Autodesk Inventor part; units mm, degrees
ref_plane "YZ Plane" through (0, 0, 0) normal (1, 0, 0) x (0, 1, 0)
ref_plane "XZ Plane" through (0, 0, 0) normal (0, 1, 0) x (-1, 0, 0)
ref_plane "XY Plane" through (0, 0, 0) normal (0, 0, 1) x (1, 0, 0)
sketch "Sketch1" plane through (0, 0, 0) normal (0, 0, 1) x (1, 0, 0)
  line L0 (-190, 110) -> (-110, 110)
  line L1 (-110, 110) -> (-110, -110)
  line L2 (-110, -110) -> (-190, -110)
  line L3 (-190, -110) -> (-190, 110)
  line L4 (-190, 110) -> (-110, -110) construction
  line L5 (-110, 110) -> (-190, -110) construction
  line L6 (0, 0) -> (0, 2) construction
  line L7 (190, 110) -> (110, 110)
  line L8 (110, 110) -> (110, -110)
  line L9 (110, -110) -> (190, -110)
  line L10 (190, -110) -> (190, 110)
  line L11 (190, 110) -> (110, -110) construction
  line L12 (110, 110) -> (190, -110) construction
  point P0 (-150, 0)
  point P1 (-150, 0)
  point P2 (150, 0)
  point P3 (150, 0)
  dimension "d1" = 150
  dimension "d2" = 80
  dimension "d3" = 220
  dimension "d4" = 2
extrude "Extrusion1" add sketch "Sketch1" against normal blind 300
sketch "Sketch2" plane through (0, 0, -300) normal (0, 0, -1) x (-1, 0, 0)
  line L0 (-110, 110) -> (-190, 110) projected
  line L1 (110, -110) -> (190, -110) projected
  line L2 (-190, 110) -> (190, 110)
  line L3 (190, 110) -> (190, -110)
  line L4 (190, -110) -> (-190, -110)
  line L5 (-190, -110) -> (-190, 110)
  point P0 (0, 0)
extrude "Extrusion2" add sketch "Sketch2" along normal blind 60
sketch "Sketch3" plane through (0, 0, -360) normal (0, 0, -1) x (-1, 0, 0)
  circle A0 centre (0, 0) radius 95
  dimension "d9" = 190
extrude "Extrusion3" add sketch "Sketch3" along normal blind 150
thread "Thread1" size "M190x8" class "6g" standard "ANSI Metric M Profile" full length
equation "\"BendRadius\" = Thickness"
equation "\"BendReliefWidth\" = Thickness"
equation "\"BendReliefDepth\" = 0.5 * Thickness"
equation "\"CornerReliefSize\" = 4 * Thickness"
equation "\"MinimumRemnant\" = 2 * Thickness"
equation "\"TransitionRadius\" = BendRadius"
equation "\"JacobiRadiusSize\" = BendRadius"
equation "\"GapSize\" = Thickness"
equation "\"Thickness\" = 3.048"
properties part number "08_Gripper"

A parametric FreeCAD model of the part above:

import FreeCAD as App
import Part
import Sketcher

V = App.Vector
Q = App.Units.Quantity


def add_polygon(sketch, points):
    """Adds a closed chain of lines whose ends are joined by coincident constraints."""
    first, n = sketch.GeometryCount, len(points)
    for a, b in zip(points, points[1:] + points[:1]):
        sketch.addGeometry(Part.LineSegment(App.Vector(*a, 0), App.Vector(*b, 0)), False)
    for i in range(n):
        sketch.addConstraint(Sketcher.Constraint("Coincident", first + i, 2, first + (i + 1) % n, 1))

doc = App.newDocument("Part")
body = doc.addObject("PartDesign::Body", "Body")
body.AllowCompound = True

sketch1 = body.newObject("Sketcher::SketchObject", "Sketch")
sketch1.AttachmentSupport = (doc.getObject("XY_Plane"), [""])
sketch1.MapMode = "FlatFace"
add_polygon(sketch1, [(-110, 110), (-190, 110), (-190, -110), (-110, -110)])
add_polygon(sketch1, [(190, -110), (190, 110), (110, 110), (110, -110)])
sketch1.addConstraint([
    Sketcher.Constraint("Horizontal", 0),
    Sketcher.Constraint("Vertical", 1),
    Sketcher.Constraint("Horizontal", 2),
    Sketcher.Constraint("Vertical", 3),
    Sketcher.Constraint("Vertical", 4),
    Sketcher.Constraint("Horizontal", 5),
    Sketcher.Constraint("Vertical", 6),
    Sketcher.Constraint("Horizontal", 7),
    Sketcher.Constraint("Symmetric", 1, 2, 4, 2, -1, 1),
    Sketcher.Constraint("Symmetric", 3, 2, 6, 2, -1, 1),
    Sketcher.Constraint("Horizontal", 3, 2, 4, 2),
    Sketcher.Constraint("DistanceX", 0, 2, 0, 1, Q("80 mm")),
    Sketcher.Constraint("DistanceY", 1, 2, 1, 1, Q("220 mm")),
    Sketcher.Constraint("DistanceX", 3, 2, 5, 2, Q("220 mm")),
])
pad1 = body.newObject("PartDesign::Pad", "Pad")
pad1.Profile = sketch1
pad1.Length = 300
pad1.Reversed = True

sketch2 = body.newObject("Sketcher::SketchObject", "Sketch001")
sketch2.AttachmentSupport = (doc.getObject("XY_Plane"), [""])
sketch2.MapMode = "FlatFace"
sketch2.AttachmentOffset = App.Placement(V(0, 0, -300), App.Rotation())
add_polygon(sketch2, [(-190, 110), (190, 110), (190, -110), (-190, -110)])
sketch2.addConstraint([
    Sketcher.Constraint("Horizontal", 0),
    Sketcher.Constraint("Vertical", 1),
    Sketcher.Constraint("Horizontal", 2),
    Sketcher.Constraint("Vertical", 3),
    Sketcher.Constraint("Symmetric", 0, 2, 2, 2, -1, 1),
    Sketcher.Constraint("DistanceX", 0, 1, 0, 2, Q("380 mm")),
    Sketcher.Constraint("DistanceY", 1, 2, 1, 1, Q("220 mm")),
])
pad2 = body.newObject("PartDesign::Pad", "Pad001")
pad2.Profile = sketch2
pad2.Length = 60
pad2.Reversed = True

sketch3 = body.newObject("Sketcher::SketchObject", "Sketch002")
sketch3.AttachmentSupport = (doc.getObject("XY_Plane"), [""])
sketch3.MapMode = "FlatFace"
sketch3.AttachmentOffset = App.Placement(V(0, 0, -360), App.Rotation())
sketch3.addGeometry(Part.Circle(V(0, 0, 0), V(0, 0, 1), 95), False)
sketch3.addConstraint([
    Sketcher.Constraint("Coincident", 0, 3, -1, 1),
    Sketcher.Constraint("Diameter", 0, Q("190 mm")),
])
pad3 = body.newObject("PartDesign::Pad", "Pad002")
pad3.Profile = sketch3
pad3.Length = 150
pad3.Reversed = True

doc.recompute()
